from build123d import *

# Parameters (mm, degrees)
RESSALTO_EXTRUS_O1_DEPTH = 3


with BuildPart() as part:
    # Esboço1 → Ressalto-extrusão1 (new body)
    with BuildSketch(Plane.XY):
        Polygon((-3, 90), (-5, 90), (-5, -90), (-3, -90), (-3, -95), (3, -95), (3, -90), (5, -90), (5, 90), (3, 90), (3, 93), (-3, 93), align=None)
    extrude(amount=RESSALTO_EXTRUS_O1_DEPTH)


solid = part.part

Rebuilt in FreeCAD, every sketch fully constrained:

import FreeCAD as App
import Part
import Sketcher

doc = App.newDocument("Part")
body = doc.addObject("PartDesign::Body", "Body")

sketch1 = body.newObject("Sketcher::SketchObject", "Sketch")
sketch1.AttachmentSupport = (doc.getObject("XY_Plane"), [""])
sketch1.MapMode = "FlatFace"
sketch1.addGeometry(Part.LineSegment(App.Vector(-3, 90, 0), App.Vector(-5, 90, 0)), False)
sketch1.addGeometry(Part.LineSegment(App.Vector(-5, 90, 0), App.Vector(-5, -90, 0)), False)
sketch1.addGeometry(Part.LineSegment(App.Vector(-5, -90, 0), App.Vector(-3, -90, 0)), False)
sketch1.addGeometry(Part.LineSegment(App.Vector(-3, -90, 0), App.Vector(-3, -95, 0)), False)
sketch1.addGeometry(Part.LineSegment(App.Vector(-3, -95, 0), App.Vector(3, -95, 0)), False)
sketch1.addGeometry(Part.LineSegment(App.Vector(3, -95, 0), App.Vector(3, -90, 0)), False)
sketch1.addGeometry(Part.LineSegment(App.Vector(3, -90, 0), App.Vector(5, -90, 0)), False)
sketch1.addGeometry(Part.LineSegment(App.Vector(5, -90, 0), App.Vector(5, 90, 0)), False)
sketch1.addGeometry(Part.LineSegment(App.Vector(5, 90, 0), App.Vector(3, 90, 0)), False)
sketch1.addGeometry(Part.LineSegment(App.Vector(3, 90, 0), App.Vector(3, 93, 0)), False)
sketch1.addGeometry(Part.LineSegment(App.Vector(3, 93, 0), App.Vector(-3, 93, 0)), False)
sketch1.addGeometry(Part.LineSegment(App.Vector(-3, 93, 0), App.Vector(-3, 90, 0)), False)
sketch1.addConstraint(Sketcher.Constraint("Coincident", 0, 2, 1, 1))
sketch1.addConstraint(Sketcher.Constraint("Coincident", 1, 2, 2, 1))
sketch1.addConstraint(Sketcher.Constraint("Coincident", 2, 2, 3, 1))
sketch1.addConstraint(Sketcher.Constraint("Coincident", 3, 2, 4, 1))
sketch1.addConstraint(Sketcher.Constraint("Coincident", 4, 2, 5, 1))
sketch1.addConstraint(Sketcher.Constraint("Coincident", 5, 2, 6, 1))
sketch1.addConstraint(Sketcher.Constraint("Coincident", 6, 2, 7, 1))
sketch1.addConstraint(Sketcher.Constraint("Coincident", 7, 2, 8, 1))
sketch1.addConstraint(Sketcher.Constraint("Coincident", 8, 2, 9, 1))
sketch1.addConstraint(Sketcher.Constraint("Coincident", 9, 2, 10, 1))
sketch1.addConstraint(Sketcher.Constraint("Coincident", 10, 2, 11, 1))
sketch1.addConstraint(Sketcher.Constraint("Coincident", 11, 2, 0, 1))
sketch1.addConstraint(Sketcher.Constraint("Horizontal", 0))
sketch1.addConstraint(Sketcher.Constraint("Vertical", 1))
sketch1.addConstraint(Sketcher.Constraint("Horizontal", 2))
sketch1.addConstraint(Sketcher.Constraint("Vertical", 3))
sketch1.addConstraint(Sketcher.Constraint("Horizontal", 4))
sketch1.addConstraint(Sketcher.Constraint("Vertical", 5))
sketch1.addConstraint(Sketcher.Constraint("Horizontal", 6))
sketch1.addConstraint(Sketcher.Constraint("Vertical", 7))
sketch1.addConstraint(Sketcher.Constraint("Horizontal", 8))
sketch1.addConstraint(Sketcher.Constraint("Vertical", 9))
sketch1.addConstraint(Sketcher.Constraint("Horizontal", 10))
sketch1.addConstraint(Sketcher.Constraint("Vertical", 11))
sketch1.addConstraint(Sketcher.Constraint("Symmetric", 0, 2, 6, 2, -1, 1))
sketch1.addConstraint(Sketcher.Constraint("Symmetric", 2, 2, 8, 2, -1, 1))
sketch1.addConstraint(Sketcher.Constraint("Symmetric", 2, 2, 5, 2, -2))
sketch1.addConstraint(Sketcher.Constraint("Vertical", 3, 2, 10, 2))
sketch1.addConstraint(Sketcher.Constraint("DistanceX", 0, 2, 0, 1, 2.0))
sketch1.addConstraint(Sketcher.Constraint("DistanceX", 4, 1, 4, 2, 6.0))
sketch1.addConstraint(Sketcher.Constraint("DistanceY", 1, 2, 1, 1, 180.0))
sketch1.addConstraint(Sketcher.Constraint("DistanceY", 3, 2, 3, 1, 5.0))
sketch1.addConstraint(Sketcher.Constraint("DistanceY", 9, 1, 9, 2, 3.0))
pad1 = body.newObject("PartDesign::Pad", "Pad")
pad1.Profile = sketch1
pad1.Length = 3

doc.recompute()
